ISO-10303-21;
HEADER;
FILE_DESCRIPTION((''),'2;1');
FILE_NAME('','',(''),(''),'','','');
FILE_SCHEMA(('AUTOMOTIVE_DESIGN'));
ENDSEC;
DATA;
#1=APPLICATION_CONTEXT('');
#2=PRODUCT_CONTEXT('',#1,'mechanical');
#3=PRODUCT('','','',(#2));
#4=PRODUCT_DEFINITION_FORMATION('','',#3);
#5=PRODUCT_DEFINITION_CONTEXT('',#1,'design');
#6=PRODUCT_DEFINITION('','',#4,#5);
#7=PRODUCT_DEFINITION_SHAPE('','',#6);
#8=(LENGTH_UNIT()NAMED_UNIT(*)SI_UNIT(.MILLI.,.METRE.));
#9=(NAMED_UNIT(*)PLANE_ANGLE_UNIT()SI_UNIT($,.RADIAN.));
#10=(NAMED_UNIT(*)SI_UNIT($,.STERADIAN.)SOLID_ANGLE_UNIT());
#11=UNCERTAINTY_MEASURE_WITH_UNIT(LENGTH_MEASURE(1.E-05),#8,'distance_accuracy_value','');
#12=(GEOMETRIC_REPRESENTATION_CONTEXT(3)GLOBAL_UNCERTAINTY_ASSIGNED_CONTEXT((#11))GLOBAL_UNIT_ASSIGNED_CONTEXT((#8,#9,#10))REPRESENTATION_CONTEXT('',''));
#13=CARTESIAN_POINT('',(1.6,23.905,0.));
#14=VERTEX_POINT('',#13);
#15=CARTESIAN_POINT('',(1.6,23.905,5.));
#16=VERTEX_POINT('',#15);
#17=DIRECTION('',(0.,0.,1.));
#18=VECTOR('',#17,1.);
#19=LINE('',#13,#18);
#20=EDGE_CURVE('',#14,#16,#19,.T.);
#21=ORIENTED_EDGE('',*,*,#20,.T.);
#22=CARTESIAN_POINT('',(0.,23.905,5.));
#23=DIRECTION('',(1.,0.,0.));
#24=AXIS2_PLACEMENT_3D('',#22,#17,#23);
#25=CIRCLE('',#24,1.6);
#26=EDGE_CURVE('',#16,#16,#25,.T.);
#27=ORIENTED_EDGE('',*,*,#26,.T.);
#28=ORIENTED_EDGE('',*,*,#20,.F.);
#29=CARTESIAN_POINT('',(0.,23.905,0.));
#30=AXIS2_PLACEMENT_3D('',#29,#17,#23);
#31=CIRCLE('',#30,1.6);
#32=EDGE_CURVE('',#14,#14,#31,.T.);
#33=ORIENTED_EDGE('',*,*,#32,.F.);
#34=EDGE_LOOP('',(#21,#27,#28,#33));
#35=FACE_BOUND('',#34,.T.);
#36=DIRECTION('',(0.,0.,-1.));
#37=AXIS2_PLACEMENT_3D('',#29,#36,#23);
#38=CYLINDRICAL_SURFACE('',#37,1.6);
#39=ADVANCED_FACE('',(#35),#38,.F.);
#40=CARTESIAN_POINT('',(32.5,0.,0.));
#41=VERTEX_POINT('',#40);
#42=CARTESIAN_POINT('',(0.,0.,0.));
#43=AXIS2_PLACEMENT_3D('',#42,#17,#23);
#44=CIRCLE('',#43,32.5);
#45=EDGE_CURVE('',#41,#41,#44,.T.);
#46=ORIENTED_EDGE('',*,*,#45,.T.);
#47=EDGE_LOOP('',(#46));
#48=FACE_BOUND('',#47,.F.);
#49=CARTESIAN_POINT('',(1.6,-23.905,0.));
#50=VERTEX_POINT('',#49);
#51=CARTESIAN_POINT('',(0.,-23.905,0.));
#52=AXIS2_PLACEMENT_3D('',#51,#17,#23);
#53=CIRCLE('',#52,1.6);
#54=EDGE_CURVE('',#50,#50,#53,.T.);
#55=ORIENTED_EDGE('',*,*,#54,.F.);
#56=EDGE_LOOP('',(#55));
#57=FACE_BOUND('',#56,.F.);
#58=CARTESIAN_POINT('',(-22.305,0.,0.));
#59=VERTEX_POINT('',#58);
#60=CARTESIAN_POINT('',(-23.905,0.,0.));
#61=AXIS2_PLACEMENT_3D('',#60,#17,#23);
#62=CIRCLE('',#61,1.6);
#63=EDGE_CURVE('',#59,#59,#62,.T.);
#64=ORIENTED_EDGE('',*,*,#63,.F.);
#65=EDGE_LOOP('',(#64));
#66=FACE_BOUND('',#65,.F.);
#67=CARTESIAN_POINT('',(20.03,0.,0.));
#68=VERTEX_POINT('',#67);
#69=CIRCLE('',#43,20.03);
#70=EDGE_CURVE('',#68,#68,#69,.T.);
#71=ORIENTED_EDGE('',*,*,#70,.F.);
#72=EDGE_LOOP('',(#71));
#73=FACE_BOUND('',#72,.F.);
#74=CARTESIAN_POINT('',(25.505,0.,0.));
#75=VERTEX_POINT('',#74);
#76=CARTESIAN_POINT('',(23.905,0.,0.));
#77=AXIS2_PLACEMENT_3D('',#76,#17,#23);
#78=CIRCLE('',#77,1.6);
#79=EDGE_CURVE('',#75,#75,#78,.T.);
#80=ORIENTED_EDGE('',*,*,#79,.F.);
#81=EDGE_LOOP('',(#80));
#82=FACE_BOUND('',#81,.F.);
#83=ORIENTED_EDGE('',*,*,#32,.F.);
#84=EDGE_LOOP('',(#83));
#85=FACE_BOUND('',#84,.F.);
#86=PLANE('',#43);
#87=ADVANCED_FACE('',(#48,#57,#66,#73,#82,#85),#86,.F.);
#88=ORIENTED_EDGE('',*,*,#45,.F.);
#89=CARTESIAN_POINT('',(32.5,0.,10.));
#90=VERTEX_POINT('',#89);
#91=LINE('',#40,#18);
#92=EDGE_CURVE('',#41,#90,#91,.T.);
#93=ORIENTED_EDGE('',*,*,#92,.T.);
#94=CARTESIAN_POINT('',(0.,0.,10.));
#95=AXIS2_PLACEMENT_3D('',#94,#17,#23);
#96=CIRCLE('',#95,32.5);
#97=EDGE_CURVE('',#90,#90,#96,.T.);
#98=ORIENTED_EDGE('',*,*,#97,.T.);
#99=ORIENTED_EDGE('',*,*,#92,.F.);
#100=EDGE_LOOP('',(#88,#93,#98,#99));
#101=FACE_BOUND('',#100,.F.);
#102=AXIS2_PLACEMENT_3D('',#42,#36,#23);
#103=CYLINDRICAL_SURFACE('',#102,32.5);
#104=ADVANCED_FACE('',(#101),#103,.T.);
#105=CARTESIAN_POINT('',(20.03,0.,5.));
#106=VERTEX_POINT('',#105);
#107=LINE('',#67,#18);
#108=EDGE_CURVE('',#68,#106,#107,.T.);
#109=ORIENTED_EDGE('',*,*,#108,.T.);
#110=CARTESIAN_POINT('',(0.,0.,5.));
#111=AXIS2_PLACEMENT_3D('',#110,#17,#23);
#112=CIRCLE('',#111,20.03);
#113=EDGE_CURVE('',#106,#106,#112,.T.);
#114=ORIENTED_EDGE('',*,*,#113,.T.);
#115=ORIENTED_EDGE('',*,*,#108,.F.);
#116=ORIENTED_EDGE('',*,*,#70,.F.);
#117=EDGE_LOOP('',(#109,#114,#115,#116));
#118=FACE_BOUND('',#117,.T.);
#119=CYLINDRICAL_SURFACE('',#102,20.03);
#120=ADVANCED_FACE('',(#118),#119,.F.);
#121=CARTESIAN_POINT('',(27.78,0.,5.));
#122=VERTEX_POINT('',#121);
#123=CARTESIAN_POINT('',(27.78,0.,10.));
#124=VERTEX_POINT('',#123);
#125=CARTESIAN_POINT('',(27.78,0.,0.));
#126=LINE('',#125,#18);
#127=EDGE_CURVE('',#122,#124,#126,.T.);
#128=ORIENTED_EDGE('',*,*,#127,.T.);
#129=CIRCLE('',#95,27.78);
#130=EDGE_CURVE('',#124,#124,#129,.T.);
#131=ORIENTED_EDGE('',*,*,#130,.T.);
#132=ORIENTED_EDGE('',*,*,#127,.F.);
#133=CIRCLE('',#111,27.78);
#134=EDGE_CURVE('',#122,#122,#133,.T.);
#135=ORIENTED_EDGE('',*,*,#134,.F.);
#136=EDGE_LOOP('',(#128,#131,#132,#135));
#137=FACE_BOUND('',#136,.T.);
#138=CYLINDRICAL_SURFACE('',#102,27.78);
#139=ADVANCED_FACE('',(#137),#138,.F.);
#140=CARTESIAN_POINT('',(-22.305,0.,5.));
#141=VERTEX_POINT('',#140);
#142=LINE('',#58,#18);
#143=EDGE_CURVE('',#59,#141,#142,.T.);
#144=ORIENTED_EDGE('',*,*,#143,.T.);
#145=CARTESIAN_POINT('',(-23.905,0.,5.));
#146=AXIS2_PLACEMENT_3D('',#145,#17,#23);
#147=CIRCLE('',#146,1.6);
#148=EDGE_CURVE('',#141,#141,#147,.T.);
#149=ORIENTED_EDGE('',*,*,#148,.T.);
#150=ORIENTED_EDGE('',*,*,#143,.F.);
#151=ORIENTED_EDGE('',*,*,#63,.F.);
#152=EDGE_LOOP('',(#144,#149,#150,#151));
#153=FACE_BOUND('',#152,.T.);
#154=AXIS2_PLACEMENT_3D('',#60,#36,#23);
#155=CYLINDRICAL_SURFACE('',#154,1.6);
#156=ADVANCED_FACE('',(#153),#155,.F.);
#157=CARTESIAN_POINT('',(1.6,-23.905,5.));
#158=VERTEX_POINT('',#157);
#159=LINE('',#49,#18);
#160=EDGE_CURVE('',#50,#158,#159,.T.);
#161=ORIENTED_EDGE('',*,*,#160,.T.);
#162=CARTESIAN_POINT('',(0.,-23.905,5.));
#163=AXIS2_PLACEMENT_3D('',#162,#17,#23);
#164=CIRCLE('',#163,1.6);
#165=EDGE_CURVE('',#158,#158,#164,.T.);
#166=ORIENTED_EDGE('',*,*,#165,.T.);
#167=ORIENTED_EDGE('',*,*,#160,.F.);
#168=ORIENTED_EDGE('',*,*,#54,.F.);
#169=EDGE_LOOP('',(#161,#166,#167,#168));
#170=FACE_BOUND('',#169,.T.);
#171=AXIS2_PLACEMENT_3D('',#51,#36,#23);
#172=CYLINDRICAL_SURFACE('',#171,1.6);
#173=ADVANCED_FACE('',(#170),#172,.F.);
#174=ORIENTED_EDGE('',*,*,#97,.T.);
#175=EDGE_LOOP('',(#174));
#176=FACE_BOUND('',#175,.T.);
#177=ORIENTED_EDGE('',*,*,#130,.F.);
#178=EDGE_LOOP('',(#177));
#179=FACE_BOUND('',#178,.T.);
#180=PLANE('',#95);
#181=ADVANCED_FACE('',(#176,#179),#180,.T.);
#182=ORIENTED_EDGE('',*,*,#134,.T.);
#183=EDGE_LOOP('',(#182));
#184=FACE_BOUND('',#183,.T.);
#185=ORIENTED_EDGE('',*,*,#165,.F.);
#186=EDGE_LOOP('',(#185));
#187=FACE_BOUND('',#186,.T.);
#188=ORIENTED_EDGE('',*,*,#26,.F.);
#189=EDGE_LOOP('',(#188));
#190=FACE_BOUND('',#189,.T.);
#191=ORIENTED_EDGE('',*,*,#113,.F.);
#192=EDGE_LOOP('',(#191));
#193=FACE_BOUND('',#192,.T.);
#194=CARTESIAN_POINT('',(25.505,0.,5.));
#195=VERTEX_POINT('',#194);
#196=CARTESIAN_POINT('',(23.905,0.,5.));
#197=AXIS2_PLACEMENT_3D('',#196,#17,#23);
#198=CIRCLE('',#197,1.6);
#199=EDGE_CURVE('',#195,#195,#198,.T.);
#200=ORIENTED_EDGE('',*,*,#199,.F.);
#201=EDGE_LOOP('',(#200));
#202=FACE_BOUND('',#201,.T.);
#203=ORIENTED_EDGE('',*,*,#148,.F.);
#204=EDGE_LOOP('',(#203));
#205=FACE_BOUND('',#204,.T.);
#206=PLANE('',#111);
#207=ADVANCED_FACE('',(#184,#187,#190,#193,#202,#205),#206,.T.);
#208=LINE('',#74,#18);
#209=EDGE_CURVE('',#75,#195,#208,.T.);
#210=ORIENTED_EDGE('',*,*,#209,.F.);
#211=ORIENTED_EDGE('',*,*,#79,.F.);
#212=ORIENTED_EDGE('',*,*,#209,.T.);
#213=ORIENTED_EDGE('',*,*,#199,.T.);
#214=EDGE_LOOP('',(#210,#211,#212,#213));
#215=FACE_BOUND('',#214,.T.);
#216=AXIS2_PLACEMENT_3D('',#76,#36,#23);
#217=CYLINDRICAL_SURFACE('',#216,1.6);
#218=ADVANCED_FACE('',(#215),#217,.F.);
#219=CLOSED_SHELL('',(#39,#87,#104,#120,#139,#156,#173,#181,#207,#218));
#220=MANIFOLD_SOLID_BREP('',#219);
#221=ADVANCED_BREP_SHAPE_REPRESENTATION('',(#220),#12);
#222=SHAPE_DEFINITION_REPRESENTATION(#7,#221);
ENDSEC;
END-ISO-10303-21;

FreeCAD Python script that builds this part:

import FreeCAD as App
import Part
import Sketcher

V = App.Vector

doc = App.newDocument("Part")
body = doc.addObject("PartDesign::Body", "Body")

sketch1 = doc.addObject("Sketcher::SketchObject", "Sketch")
body.addObject(sketch1)
sketch1.AttachmentSupport = (doc.XY_Plane, [""])
sketch1.MapMode = "FlatFace"
sketch1.addGeometry(Part.Circle(V(0, 0, 0), V(0, 0, 1), 32), False)
sketch1.addGeometry(Part.Circle(V(0, 0, 0), V(0, 0, 1), 28), False)
sketch1.addConstraint(Sketcher.Constraint("Coincident", 0, 3, -1, 1))
sketch1.addConstraint(Sketcher.Constraint("Coincident", 1, 3, -1, 1))
sketch1.addConstraint(Sketcher.Constraint("Diameter", 0, 65.0))
sketch1.addConstraint(Sketcher.Constraint("Diameter", 1, 55.56))
pad1 = doc.addObject("PartDesign::Pad", "Pad")
body.addObject(pad1)
pad1.Profile = sketch1
pad1.Length = 10

sketch2 = doc.addObject("Sketcher::SketchObject", "Sketch001")
body.addObject(sketch2)
sketch2.AttachmentSupport = (doc.XY_Plane, [""])
sketch2.MapMode = "FlatFace"
sketch2.addGeometry(Part.Circle(V(0, 0, 0), V(0, 0, 1), 27.8), False)
sketch2.addGeometry(Part.Circle(V(0, -23.9, 0), V(0, 0, 1), 1.6), False)
sketch2.addGeometry(Part.Circle(V(-23.9, 0, 0), V(0, 0, 1), 1.6), False)
sketch2.addGeometry(Part.Circle(V(0, 0, 0), V(0, 0, 1), 20), False)
sketch2.addGeometry(Part.Circle(V(23.9, 0, 0), V(0, 0, 1), 1.6), False)
sketch2.addGeometry(Part.Circle(V(0, 23.9, 0), V(0, 0, 1), 1.6), False)
sketch2.addConstraint(Sketcher.Constraint("Coincident", 0, 3, -1, 1))
sketch2.addConstraint(Sketcher.Constraint("Coincident", 3, 3, -1, 1))
sketch2.addConstraint(Sketcher.Constraint("Equal", 1, 2))
sketch2.addConstraint(Sketcher.Constraint("Equal", 2, 4))
sketch2.addConstraint(Sketcher.Constraint("Equal", 4, 5))
sketch2.addConstraint(Sketcher.Constraint("Symmetric", 2, 3, 4, 3, -1, 1))
sketch2.addConstraint(Sketcher.Constraint("Symmetric", 1, 3, 5, 3, -1, 1))
sketch2.addConstraint(Sketcher.Constraint("PointOnObject", 1, 3, -2))
sketch2.addConstraint(Sketcher.Constraint("PointOnObject", 2, 3, -1))
sketch2.addConstraint(Sketcher.Constraint("Diameter", 1, 3.2))
sketch2.addConstraint(Sketcher.Constraint("Diameter", 0, 55.56))
sketch2.addConstraint(Sketcher.Constraint("Diameter", 3, 40.06))
sketch2.addConstraint(Sketcher.Constraint("DistanceX", 2, 3, 4, 3, 47.81))
sketch2.addConstraint(Sketcher.Constraint("DistanceY", 1, 3, 5, 3, 47.81))
pad2 = doc.addObject("PartDesign::Pad", "Pad001")
body.addObject(pad2)
pad2.Profile = sketch2
pad2.Length = 5

doc.recompute()
